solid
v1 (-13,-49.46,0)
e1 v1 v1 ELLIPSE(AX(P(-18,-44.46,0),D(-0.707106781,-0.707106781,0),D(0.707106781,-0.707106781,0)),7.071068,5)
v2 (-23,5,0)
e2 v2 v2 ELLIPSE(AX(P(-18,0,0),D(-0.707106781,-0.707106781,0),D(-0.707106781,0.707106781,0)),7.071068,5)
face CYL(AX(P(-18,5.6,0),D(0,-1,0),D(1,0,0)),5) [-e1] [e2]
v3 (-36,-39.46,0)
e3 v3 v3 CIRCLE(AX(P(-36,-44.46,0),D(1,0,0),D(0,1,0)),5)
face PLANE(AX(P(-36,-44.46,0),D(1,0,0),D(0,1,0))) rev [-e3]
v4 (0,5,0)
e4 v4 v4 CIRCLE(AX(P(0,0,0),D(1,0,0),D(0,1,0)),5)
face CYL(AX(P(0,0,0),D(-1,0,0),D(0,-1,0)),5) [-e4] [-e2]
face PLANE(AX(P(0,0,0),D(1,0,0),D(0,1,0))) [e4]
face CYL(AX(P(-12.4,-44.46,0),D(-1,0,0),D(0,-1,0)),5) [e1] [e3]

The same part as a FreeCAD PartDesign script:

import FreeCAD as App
import Part
import Sketcher

V = App.Vector

doc = App.newDocument("Part")
body = doc.addObject("PartDesign::Body", "Body")

sketch1 = doc.addObject("Sketcher::SketchObject", "Sketch")
body.addObject(sketch1)
sketch1.AttachmentSupport = (doc.YZ_Plane, [""])
sketch1.MapMode = "FlatFace"
sketch1.addGeometry(Part.Circle(V(0, 0, 0), V(0, 0, 1), 5), False)
sketch1.addConstraint([
    Sketcher.Constraint("Coincident", 0, 3, -1, 1),
    Sketcher.Constraint("Diameter", 0, 10.0),
])

sketch2 = doc.addObject("Sketcher::SketchObject", "Sketch001")
body.addObject(sketch2)
sketch2.AttachmentSupport = (doc.XY_Plane, [""])
sketch2.MapMode = "FlatFace"
sketch2.addGeometry([
    Part.LineSegment(V(0, 0, 0), V(-18, 0, 0)),
    Part.LineSegment(V(-18, 0, 0), V(-18, -44.46, 0)),
    Part.LineSegment(V(-18, -44.46, 0), V(-36, -44.46, 0)),
], False)
sketch2.addConstraint([
    Sketcher.Constraint("Coincident", 0, 2, 1, 1),
    Sketcher.Constraint("Coincident", 1, 2, 2, 1),
    Sketcher.Constraint("Horizontal", 0),
    Sketcher.Constraint("Vertical", 1),
    Sketcher.Constraint("Horizontal", 2),
    Sketcher.Constraint("Coincident", 0, 1, -1, 1),
    Sketcher.Constraint("Equal", 0, 2),
    Sketcher.Constraint("DistanceX", 0, 2, 0, 1, 18.0),
    Sketcher.Constraint("DistanceY", 1, 2, 1, 1, 44.46),
])
doc.recompute()

additivepipe = doc.addObject("PartDesign::AdditivePipe", "AdditivePipe")
body.addObject(additivepipe)
additivepipe.Profile = sketch1
additivepipe.Spine = (sketch2, ["Edge1", "Edge2", "Edge3"])
additivepipe.Transition = "Right corner"

doc.recompute()
